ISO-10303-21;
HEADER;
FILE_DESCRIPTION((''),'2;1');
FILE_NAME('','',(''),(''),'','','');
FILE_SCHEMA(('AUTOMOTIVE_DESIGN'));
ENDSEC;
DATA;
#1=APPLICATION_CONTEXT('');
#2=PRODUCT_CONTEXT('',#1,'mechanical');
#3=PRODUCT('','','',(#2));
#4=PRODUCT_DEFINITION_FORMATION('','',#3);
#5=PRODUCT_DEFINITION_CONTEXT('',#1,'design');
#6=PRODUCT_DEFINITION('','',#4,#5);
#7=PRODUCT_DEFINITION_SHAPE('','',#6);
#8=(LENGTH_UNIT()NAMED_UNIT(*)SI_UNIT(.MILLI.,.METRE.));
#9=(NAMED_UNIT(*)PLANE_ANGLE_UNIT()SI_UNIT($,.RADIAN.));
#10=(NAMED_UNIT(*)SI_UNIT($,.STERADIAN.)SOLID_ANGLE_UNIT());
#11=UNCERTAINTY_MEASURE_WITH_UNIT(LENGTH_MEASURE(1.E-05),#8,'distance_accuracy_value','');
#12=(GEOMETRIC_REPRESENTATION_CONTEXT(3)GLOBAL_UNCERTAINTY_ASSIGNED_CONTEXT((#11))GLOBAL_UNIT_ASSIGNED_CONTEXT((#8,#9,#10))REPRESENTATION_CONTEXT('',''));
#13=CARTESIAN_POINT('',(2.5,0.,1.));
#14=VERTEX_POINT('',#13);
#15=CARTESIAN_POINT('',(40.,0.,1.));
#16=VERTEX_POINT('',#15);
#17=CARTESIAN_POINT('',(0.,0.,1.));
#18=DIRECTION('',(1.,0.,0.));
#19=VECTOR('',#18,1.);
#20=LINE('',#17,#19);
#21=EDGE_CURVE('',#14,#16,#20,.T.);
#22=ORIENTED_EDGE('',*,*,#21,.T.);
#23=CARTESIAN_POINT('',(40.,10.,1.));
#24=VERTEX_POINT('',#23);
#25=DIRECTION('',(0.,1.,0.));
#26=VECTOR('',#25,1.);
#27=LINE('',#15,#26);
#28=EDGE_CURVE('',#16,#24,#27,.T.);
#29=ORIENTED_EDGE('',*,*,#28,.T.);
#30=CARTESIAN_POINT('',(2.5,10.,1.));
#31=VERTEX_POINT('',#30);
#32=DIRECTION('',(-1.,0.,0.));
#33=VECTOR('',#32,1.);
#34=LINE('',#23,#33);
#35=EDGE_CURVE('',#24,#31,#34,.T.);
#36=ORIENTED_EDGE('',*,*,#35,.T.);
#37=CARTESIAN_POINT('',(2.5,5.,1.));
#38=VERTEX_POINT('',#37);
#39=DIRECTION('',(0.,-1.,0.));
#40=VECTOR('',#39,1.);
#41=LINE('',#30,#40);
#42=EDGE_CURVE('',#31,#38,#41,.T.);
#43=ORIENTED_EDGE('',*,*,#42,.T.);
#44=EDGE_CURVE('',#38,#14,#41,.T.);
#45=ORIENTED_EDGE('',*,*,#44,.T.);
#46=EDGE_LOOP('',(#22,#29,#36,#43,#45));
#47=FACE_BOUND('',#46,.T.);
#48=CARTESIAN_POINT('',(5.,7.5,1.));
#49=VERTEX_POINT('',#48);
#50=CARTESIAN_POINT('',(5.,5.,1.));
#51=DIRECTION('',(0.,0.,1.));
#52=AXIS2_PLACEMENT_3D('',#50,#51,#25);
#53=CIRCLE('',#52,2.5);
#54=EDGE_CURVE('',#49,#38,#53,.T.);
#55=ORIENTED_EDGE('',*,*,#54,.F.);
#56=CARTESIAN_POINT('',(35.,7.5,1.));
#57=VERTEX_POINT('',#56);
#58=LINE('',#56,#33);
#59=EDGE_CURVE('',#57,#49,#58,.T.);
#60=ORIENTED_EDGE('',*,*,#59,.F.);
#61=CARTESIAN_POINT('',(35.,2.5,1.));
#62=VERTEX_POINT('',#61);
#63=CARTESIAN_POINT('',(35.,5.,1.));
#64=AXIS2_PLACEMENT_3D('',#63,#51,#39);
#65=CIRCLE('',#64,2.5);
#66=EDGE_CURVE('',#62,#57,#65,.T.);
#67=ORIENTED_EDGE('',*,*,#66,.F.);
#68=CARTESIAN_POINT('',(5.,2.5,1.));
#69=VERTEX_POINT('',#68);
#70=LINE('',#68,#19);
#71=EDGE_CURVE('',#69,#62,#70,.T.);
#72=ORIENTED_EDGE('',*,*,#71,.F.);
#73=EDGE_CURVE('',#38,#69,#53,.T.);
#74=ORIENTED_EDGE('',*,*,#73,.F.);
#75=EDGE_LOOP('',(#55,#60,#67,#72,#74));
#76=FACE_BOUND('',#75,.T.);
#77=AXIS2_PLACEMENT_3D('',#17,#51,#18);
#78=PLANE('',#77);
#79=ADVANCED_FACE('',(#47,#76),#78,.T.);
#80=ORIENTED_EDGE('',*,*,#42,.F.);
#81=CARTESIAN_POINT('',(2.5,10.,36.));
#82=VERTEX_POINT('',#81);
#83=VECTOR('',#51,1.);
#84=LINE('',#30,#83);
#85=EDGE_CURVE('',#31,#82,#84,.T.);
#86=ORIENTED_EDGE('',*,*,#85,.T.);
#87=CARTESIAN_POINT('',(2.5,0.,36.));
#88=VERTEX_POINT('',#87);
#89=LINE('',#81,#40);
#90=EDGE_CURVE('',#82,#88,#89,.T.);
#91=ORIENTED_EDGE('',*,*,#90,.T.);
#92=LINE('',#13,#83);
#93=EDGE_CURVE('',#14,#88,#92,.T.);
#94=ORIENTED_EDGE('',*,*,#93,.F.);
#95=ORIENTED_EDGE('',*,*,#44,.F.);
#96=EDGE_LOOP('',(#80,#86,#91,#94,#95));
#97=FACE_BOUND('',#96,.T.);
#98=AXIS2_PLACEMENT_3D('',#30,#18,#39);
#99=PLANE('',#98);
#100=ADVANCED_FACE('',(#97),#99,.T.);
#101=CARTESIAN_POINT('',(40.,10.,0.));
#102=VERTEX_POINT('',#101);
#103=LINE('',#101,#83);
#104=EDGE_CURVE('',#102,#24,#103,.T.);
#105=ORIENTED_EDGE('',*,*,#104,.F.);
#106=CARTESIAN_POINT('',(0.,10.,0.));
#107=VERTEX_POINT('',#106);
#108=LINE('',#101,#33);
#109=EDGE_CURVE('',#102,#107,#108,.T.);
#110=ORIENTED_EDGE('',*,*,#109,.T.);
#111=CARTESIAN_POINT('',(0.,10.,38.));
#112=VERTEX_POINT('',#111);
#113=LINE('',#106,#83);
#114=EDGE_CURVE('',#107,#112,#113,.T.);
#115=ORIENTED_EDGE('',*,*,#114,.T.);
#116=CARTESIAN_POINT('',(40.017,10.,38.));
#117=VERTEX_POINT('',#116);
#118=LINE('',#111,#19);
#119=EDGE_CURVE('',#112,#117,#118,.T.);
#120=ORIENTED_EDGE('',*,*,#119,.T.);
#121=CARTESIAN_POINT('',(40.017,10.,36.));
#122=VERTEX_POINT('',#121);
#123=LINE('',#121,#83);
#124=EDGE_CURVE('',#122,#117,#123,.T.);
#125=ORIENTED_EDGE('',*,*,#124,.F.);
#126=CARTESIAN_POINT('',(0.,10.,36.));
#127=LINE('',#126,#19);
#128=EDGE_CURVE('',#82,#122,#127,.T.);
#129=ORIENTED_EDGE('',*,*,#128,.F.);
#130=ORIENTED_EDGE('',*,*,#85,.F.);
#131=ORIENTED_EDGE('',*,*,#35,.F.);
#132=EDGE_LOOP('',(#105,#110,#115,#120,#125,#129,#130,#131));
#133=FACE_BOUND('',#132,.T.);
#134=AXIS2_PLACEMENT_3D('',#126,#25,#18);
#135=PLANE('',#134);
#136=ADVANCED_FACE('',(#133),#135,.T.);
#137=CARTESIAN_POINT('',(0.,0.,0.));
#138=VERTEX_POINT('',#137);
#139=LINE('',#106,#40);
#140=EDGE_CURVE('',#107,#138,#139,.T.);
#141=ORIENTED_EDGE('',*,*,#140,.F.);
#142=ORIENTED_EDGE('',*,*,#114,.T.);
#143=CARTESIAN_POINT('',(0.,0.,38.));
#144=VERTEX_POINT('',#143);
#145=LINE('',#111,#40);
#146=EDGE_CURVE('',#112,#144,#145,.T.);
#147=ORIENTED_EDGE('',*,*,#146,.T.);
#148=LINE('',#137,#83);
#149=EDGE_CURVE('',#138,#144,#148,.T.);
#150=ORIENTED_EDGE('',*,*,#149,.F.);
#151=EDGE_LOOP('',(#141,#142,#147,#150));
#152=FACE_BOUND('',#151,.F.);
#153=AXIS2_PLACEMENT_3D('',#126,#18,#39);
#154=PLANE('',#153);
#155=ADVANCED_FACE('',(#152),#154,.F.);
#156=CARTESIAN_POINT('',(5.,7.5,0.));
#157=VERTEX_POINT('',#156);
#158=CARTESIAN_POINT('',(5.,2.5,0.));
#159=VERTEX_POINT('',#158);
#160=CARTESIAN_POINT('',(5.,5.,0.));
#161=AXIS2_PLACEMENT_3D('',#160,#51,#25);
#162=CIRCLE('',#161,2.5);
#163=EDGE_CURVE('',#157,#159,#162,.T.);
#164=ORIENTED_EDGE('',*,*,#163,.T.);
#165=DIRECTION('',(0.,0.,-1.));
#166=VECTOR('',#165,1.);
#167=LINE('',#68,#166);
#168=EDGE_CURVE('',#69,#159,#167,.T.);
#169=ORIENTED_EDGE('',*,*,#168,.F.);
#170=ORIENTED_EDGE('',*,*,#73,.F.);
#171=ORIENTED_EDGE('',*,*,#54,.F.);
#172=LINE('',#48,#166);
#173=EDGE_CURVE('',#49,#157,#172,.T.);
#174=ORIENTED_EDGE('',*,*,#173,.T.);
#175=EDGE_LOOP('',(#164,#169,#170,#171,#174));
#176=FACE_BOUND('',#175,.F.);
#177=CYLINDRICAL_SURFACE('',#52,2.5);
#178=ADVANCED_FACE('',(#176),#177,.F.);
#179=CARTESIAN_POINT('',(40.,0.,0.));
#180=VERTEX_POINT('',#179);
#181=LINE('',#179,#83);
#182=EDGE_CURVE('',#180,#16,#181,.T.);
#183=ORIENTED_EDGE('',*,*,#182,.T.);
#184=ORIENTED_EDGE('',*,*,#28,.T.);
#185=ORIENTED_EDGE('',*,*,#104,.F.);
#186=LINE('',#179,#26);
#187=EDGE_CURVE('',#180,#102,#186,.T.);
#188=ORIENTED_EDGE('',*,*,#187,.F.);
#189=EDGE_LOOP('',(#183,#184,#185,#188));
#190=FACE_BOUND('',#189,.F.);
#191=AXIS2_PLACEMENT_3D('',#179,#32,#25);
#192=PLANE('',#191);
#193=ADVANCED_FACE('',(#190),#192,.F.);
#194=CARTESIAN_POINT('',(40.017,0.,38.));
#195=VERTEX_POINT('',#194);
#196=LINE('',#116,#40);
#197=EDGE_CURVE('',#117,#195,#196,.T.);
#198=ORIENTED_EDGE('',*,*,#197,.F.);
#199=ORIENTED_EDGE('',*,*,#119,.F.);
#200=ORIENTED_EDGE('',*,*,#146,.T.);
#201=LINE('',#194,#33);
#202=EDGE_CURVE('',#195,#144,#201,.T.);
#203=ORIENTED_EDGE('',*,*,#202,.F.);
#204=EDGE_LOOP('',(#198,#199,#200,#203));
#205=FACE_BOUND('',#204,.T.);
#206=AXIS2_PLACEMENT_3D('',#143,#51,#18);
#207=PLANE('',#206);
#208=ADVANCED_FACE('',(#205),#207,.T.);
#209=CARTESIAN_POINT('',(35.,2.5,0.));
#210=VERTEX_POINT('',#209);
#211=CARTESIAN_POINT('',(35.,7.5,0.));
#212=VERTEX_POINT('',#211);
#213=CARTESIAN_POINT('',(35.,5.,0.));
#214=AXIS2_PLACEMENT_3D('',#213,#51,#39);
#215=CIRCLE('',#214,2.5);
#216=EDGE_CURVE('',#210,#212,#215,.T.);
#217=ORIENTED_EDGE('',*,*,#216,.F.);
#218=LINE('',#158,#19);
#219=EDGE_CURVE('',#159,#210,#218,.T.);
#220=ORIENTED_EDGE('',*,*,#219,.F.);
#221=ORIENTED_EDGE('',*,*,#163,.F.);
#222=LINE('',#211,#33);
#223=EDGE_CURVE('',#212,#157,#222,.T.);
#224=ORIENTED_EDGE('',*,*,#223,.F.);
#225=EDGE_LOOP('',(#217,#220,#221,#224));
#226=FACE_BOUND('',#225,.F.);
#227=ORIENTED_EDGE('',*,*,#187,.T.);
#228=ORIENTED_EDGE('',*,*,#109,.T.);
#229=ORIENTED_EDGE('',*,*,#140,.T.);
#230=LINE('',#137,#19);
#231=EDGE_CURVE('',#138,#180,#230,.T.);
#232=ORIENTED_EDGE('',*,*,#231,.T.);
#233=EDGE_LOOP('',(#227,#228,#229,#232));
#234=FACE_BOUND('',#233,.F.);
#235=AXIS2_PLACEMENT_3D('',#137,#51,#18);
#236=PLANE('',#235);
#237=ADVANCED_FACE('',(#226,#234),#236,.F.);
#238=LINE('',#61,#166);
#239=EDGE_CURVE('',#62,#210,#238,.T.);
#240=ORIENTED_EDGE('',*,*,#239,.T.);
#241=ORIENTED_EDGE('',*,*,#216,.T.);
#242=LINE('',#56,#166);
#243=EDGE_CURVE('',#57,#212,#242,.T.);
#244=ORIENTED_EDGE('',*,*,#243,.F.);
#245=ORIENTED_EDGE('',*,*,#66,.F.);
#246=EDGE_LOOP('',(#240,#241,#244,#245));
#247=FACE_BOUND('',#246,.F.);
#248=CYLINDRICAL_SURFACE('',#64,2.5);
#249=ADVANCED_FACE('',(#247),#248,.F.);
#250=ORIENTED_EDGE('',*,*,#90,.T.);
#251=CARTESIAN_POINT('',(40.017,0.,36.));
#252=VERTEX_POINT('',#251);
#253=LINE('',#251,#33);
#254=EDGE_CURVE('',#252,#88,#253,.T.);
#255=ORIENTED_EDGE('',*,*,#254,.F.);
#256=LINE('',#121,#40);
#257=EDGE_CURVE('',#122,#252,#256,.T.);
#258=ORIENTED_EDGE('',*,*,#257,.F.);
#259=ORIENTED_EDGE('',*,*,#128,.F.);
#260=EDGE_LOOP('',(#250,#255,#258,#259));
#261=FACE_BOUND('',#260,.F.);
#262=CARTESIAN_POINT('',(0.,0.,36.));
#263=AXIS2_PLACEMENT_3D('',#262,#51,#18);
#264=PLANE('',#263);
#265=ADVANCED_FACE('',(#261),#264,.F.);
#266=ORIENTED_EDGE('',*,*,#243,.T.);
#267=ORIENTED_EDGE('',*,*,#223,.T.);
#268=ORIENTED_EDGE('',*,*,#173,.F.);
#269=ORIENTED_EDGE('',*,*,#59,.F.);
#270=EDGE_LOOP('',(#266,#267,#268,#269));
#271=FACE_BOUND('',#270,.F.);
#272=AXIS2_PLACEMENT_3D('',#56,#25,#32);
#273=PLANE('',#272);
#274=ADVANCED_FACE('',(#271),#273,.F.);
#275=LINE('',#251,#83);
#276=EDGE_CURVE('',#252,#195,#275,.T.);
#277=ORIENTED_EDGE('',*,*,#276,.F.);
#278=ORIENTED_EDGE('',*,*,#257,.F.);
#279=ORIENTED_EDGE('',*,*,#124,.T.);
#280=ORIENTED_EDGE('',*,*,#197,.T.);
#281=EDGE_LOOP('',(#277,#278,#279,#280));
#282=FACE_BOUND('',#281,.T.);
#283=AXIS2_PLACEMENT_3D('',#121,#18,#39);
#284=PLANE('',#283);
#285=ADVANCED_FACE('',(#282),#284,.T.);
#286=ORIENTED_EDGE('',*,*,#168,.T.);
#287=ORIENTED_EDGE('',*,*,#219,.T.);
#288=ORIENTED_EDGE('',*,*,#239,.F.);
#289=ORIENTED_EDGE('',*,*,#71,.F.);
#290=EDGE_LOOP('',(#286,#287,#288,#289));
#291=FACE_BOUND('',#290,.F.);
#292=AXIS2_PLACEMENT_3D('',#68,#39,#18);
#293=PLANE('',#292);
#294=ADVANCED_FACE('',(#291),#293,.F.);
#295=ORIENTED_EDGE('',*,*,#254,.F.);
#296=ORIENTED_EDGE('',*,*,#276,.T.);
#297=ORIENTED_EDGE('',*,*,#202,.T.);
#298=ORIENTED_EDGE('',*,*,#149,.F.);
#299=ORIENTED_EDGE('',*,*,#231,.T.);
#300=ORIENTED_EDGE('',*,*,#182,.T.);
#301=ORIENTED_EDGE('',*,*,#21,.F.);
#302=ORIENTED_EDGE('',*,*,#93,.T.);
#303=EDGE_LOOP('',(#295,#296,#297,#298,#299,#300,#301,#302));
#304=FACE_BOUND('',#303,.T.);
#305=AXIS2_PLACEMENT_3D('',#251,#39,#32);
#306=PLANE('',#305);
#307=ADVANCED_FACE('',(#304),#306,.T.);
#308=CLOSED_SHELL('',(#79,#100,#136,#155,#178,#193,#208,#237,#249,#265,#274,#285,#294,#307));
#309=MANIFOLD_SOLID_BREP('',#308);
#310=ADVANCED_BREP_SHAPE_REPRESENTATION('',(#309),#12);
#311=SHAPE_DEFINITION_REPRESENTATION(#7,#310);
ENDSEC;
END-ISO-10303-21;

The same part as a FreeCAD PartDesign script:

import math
import FreeCAD as App
import Part
import Sketcher

V = App.Vector
Q = App.Units.Quantity


def add_polygon(sketch, points):
    """Adds a closed chain of lines whose ends are joined by coincident constraints."""
    first, n = sketch.GeometryCount, len(points)
    for a, b in zip(points, points[1:] + points[:1]):
        sketch.addGeometry(Part.LineSegment(App.Vector(*a, 0), App.Vector(*b, 0)), False)
    for i in range(n):
        sketch.addConstraint(Sketcher.Constraint("Coincident", first + i, 2, first + (i + 1) % n, 1))

doc = App.newDocument("Part")
body = doc.addObject("PartDesign::Body", "Body")

# Sketch on XY plane
sketch1 = doc.addObject("Sketcher::SketchObject", "Sketch")
body.addObject(sketch1)
sketch1.AttachmentSupport = (doc.XY_Plane, [""])
sketch1.MapMode = "FlatFace"
add_polygon(sketch1, [(0, 10), (0, 0), (40, 0), (40, 10)])  # lines 0-3
sketch1.addConstraint(Sketcher.Constraint("Vertical", 0))
sketch1.addConstraint(Sketcher.Constraint("Horizontal", 1))
sketch1.addConstraint(Sketcher.Constraint("Vertical", 2))
sketch1.addConstraint(Sketcher.Constraint("Horizontal", 3))
sketch1.addConstraint(Sketcher.Constraint("Coincident", 0, 2, -1, 1))
sketch1.addConstraint(Sketcher.Constraint("DistanceX", 1, 1, 1, 2, Q("40 mm")))
sketch1.addConstraint(Sketcher.Constraint("DistanceY", 0, 2, 0, 1, Q("10 mm")))
pad1 = doc.addObject("PartDesign::Pad", "Pad")
body.addObject(pad1)
pad1.Profile = sketch1
pad1.Length = 1

# Sketch on XY plane
sketch2 = doc.addObject("Sketcher::SketchObject", "Sketch001")
body.addObject(sketch2)
sketch2.AttachmentSupport = (doc.XY_Plane, [""])
sketch2.MapMode = "FlatFace"
sketch2.AttachmentOffset = App.Placement(V(0, 0, 1), App.Rotation())
sketch2.addGeometry(Part.ArcOfCircle(Part.Circle(V(5, 5, 0), V(0, 0, 1), 2.5), math.radians(90), math.radians(270)), False)
sketch2.addGeometry(Part.LineSegment(V(5, 2.5, 0), V(35, 2.5, 0)), False)
sketch2.addGeometry(Part.ArcOfCircle(Part.Circle(V(35, 5, 0), V(0, 0, 1), 2.5), math.radians(-90), math.radians(90)), False)
sketch2.addGeometry(Part.LineSegment(V(35, 7.5, 0), V(5, 7.5, 0)), False)
sketch2.addConstraint(Sketcher.Constraint("Tangent", 0, 2, 1, 1))
sketch2.addConstraint(Sketcher.Constraint("Tangent", 1, 2, 2, 1))
sketch2.addConstraint(Sketcher.Constraint("Tangent", 2, 2, 3, 1))
sketch2.addConstraint(Sketcher.Constraint("Tangent", 3, 2, 0, 1))
sketch2.addConstraint(Sketcher.Constraint("Horizontal", 1))
sketch2.addConstraint(Sketcher.Constraint("Horizontal", 3))
sketch2.addConstraint(Sketcher.Constraint("Radius", 0, Q("2.5 mm")))
sketch2.addConstraint(Sketcher.Constraint("DistanceX", 1, 1, 1, 2, Q("30 mm")))
sketch2.addConstraint(Sketcher.Constraint("DistanceX", -1, 1, 0, 3, Q("5 mm")))
sketch2.addConstraint(Sketcher.Constraint("DistanceY", -1, 1, 0, 3, Q("5 mm")))
pocket1 = doc.addObject("PartDesign::Pocket", "Pocket")
body.addObject(pocket1)
pocket1.Profile = sketch2
pocket1.Length = 1

# Sketch on XY plane
sketch3 = doc.addObject("Sketcher::SketchObject", "Sketch002")
body.addObject(sketch3)
sketch3.AttachmentSupport = (doc.XY_Plane, [""])
sketch3.MapMode = "FlatFace"
sketch3.AttachmentOffset = App.Placement(V(0, 0, 1), App.Rotation())
add_polygon(sketch3, [(2.5, 0), (2.5, 10), (0, 10), (0, 0)])  # lines 0-3
sketch3.addConstraint(Sketcher.Constraint("Vertical", 0))
sketch3.addConstraint(Sketcher.Constraint("Horizontal", 1))
sketch3.addConstraint(Sketcher.Constraint("Vertical", 2))
sketch3.addConstraint(Sketcher.Constraint("Horizontal", 3))
sketch3.addConstraint(Sketcher.Constraint("Coincident", 2, 2, -1, 1))
sketch3.addConstraint(Sketcher.Constraint("DistanceX", 1, 2, 1, 1, Q("2.5 mm")))
sketch3.addConstraint(Sketcher.Constraint("DistanceY", 0, 1, 0, 2, Q("10 mm")))
pad2 = doc.addObject("PartDesign::Pad", "Pad001")
body.addObject(pad2)
pad2.Profile = sketch3
pad2.Length = 35

# Sketch on XY plane
sketch4 = doc.addObject("Sketcher::SketchObject", "Sketch003")
body.addObject(sketch4)
sketch4.AttachmentSupport = (doc.XY_Plane, [""])
sketch4.MapMode = "FlatFace"
sketch4.AttachmentOffset = App.Placement(V(0, 0, 36), App.Rotation())
add_polygon(sketch4, [(40, 10), (0, 10), (0, 0), (40, 0)])  # lines 0-3
sketch4.addConstraint(Sketcher.Constraint("Horizontal", 0))
sketch4.addConstraint(Sketcher.Constraint("Vertical", 1))
sketch4.addConstraint(Sketcher.Constraint("Horizontal", 2))
sketch4.addConstraint(Sketcher.Constraint("Vertical", 3))
sketch4.addConstraint(Sketcher.Constraint("Coincident", 1, 2, -1, 1))
sketch4.addConstraint(Sketcher.Constraint("DistanceY", 1, 2, 1, 1, Q("10 mm")))
sketch4.addConstraint(Sketcher.Constraint("DistanceX", 0, 2, 0, 1, Q("40.017 mm")))
pad3 = doc.addObject("PartDesign::Pad", "Pad002")
body.addObject(pad3)
pad3.Profile = sketch4
pad3.Length = 2

doc.recompute()
